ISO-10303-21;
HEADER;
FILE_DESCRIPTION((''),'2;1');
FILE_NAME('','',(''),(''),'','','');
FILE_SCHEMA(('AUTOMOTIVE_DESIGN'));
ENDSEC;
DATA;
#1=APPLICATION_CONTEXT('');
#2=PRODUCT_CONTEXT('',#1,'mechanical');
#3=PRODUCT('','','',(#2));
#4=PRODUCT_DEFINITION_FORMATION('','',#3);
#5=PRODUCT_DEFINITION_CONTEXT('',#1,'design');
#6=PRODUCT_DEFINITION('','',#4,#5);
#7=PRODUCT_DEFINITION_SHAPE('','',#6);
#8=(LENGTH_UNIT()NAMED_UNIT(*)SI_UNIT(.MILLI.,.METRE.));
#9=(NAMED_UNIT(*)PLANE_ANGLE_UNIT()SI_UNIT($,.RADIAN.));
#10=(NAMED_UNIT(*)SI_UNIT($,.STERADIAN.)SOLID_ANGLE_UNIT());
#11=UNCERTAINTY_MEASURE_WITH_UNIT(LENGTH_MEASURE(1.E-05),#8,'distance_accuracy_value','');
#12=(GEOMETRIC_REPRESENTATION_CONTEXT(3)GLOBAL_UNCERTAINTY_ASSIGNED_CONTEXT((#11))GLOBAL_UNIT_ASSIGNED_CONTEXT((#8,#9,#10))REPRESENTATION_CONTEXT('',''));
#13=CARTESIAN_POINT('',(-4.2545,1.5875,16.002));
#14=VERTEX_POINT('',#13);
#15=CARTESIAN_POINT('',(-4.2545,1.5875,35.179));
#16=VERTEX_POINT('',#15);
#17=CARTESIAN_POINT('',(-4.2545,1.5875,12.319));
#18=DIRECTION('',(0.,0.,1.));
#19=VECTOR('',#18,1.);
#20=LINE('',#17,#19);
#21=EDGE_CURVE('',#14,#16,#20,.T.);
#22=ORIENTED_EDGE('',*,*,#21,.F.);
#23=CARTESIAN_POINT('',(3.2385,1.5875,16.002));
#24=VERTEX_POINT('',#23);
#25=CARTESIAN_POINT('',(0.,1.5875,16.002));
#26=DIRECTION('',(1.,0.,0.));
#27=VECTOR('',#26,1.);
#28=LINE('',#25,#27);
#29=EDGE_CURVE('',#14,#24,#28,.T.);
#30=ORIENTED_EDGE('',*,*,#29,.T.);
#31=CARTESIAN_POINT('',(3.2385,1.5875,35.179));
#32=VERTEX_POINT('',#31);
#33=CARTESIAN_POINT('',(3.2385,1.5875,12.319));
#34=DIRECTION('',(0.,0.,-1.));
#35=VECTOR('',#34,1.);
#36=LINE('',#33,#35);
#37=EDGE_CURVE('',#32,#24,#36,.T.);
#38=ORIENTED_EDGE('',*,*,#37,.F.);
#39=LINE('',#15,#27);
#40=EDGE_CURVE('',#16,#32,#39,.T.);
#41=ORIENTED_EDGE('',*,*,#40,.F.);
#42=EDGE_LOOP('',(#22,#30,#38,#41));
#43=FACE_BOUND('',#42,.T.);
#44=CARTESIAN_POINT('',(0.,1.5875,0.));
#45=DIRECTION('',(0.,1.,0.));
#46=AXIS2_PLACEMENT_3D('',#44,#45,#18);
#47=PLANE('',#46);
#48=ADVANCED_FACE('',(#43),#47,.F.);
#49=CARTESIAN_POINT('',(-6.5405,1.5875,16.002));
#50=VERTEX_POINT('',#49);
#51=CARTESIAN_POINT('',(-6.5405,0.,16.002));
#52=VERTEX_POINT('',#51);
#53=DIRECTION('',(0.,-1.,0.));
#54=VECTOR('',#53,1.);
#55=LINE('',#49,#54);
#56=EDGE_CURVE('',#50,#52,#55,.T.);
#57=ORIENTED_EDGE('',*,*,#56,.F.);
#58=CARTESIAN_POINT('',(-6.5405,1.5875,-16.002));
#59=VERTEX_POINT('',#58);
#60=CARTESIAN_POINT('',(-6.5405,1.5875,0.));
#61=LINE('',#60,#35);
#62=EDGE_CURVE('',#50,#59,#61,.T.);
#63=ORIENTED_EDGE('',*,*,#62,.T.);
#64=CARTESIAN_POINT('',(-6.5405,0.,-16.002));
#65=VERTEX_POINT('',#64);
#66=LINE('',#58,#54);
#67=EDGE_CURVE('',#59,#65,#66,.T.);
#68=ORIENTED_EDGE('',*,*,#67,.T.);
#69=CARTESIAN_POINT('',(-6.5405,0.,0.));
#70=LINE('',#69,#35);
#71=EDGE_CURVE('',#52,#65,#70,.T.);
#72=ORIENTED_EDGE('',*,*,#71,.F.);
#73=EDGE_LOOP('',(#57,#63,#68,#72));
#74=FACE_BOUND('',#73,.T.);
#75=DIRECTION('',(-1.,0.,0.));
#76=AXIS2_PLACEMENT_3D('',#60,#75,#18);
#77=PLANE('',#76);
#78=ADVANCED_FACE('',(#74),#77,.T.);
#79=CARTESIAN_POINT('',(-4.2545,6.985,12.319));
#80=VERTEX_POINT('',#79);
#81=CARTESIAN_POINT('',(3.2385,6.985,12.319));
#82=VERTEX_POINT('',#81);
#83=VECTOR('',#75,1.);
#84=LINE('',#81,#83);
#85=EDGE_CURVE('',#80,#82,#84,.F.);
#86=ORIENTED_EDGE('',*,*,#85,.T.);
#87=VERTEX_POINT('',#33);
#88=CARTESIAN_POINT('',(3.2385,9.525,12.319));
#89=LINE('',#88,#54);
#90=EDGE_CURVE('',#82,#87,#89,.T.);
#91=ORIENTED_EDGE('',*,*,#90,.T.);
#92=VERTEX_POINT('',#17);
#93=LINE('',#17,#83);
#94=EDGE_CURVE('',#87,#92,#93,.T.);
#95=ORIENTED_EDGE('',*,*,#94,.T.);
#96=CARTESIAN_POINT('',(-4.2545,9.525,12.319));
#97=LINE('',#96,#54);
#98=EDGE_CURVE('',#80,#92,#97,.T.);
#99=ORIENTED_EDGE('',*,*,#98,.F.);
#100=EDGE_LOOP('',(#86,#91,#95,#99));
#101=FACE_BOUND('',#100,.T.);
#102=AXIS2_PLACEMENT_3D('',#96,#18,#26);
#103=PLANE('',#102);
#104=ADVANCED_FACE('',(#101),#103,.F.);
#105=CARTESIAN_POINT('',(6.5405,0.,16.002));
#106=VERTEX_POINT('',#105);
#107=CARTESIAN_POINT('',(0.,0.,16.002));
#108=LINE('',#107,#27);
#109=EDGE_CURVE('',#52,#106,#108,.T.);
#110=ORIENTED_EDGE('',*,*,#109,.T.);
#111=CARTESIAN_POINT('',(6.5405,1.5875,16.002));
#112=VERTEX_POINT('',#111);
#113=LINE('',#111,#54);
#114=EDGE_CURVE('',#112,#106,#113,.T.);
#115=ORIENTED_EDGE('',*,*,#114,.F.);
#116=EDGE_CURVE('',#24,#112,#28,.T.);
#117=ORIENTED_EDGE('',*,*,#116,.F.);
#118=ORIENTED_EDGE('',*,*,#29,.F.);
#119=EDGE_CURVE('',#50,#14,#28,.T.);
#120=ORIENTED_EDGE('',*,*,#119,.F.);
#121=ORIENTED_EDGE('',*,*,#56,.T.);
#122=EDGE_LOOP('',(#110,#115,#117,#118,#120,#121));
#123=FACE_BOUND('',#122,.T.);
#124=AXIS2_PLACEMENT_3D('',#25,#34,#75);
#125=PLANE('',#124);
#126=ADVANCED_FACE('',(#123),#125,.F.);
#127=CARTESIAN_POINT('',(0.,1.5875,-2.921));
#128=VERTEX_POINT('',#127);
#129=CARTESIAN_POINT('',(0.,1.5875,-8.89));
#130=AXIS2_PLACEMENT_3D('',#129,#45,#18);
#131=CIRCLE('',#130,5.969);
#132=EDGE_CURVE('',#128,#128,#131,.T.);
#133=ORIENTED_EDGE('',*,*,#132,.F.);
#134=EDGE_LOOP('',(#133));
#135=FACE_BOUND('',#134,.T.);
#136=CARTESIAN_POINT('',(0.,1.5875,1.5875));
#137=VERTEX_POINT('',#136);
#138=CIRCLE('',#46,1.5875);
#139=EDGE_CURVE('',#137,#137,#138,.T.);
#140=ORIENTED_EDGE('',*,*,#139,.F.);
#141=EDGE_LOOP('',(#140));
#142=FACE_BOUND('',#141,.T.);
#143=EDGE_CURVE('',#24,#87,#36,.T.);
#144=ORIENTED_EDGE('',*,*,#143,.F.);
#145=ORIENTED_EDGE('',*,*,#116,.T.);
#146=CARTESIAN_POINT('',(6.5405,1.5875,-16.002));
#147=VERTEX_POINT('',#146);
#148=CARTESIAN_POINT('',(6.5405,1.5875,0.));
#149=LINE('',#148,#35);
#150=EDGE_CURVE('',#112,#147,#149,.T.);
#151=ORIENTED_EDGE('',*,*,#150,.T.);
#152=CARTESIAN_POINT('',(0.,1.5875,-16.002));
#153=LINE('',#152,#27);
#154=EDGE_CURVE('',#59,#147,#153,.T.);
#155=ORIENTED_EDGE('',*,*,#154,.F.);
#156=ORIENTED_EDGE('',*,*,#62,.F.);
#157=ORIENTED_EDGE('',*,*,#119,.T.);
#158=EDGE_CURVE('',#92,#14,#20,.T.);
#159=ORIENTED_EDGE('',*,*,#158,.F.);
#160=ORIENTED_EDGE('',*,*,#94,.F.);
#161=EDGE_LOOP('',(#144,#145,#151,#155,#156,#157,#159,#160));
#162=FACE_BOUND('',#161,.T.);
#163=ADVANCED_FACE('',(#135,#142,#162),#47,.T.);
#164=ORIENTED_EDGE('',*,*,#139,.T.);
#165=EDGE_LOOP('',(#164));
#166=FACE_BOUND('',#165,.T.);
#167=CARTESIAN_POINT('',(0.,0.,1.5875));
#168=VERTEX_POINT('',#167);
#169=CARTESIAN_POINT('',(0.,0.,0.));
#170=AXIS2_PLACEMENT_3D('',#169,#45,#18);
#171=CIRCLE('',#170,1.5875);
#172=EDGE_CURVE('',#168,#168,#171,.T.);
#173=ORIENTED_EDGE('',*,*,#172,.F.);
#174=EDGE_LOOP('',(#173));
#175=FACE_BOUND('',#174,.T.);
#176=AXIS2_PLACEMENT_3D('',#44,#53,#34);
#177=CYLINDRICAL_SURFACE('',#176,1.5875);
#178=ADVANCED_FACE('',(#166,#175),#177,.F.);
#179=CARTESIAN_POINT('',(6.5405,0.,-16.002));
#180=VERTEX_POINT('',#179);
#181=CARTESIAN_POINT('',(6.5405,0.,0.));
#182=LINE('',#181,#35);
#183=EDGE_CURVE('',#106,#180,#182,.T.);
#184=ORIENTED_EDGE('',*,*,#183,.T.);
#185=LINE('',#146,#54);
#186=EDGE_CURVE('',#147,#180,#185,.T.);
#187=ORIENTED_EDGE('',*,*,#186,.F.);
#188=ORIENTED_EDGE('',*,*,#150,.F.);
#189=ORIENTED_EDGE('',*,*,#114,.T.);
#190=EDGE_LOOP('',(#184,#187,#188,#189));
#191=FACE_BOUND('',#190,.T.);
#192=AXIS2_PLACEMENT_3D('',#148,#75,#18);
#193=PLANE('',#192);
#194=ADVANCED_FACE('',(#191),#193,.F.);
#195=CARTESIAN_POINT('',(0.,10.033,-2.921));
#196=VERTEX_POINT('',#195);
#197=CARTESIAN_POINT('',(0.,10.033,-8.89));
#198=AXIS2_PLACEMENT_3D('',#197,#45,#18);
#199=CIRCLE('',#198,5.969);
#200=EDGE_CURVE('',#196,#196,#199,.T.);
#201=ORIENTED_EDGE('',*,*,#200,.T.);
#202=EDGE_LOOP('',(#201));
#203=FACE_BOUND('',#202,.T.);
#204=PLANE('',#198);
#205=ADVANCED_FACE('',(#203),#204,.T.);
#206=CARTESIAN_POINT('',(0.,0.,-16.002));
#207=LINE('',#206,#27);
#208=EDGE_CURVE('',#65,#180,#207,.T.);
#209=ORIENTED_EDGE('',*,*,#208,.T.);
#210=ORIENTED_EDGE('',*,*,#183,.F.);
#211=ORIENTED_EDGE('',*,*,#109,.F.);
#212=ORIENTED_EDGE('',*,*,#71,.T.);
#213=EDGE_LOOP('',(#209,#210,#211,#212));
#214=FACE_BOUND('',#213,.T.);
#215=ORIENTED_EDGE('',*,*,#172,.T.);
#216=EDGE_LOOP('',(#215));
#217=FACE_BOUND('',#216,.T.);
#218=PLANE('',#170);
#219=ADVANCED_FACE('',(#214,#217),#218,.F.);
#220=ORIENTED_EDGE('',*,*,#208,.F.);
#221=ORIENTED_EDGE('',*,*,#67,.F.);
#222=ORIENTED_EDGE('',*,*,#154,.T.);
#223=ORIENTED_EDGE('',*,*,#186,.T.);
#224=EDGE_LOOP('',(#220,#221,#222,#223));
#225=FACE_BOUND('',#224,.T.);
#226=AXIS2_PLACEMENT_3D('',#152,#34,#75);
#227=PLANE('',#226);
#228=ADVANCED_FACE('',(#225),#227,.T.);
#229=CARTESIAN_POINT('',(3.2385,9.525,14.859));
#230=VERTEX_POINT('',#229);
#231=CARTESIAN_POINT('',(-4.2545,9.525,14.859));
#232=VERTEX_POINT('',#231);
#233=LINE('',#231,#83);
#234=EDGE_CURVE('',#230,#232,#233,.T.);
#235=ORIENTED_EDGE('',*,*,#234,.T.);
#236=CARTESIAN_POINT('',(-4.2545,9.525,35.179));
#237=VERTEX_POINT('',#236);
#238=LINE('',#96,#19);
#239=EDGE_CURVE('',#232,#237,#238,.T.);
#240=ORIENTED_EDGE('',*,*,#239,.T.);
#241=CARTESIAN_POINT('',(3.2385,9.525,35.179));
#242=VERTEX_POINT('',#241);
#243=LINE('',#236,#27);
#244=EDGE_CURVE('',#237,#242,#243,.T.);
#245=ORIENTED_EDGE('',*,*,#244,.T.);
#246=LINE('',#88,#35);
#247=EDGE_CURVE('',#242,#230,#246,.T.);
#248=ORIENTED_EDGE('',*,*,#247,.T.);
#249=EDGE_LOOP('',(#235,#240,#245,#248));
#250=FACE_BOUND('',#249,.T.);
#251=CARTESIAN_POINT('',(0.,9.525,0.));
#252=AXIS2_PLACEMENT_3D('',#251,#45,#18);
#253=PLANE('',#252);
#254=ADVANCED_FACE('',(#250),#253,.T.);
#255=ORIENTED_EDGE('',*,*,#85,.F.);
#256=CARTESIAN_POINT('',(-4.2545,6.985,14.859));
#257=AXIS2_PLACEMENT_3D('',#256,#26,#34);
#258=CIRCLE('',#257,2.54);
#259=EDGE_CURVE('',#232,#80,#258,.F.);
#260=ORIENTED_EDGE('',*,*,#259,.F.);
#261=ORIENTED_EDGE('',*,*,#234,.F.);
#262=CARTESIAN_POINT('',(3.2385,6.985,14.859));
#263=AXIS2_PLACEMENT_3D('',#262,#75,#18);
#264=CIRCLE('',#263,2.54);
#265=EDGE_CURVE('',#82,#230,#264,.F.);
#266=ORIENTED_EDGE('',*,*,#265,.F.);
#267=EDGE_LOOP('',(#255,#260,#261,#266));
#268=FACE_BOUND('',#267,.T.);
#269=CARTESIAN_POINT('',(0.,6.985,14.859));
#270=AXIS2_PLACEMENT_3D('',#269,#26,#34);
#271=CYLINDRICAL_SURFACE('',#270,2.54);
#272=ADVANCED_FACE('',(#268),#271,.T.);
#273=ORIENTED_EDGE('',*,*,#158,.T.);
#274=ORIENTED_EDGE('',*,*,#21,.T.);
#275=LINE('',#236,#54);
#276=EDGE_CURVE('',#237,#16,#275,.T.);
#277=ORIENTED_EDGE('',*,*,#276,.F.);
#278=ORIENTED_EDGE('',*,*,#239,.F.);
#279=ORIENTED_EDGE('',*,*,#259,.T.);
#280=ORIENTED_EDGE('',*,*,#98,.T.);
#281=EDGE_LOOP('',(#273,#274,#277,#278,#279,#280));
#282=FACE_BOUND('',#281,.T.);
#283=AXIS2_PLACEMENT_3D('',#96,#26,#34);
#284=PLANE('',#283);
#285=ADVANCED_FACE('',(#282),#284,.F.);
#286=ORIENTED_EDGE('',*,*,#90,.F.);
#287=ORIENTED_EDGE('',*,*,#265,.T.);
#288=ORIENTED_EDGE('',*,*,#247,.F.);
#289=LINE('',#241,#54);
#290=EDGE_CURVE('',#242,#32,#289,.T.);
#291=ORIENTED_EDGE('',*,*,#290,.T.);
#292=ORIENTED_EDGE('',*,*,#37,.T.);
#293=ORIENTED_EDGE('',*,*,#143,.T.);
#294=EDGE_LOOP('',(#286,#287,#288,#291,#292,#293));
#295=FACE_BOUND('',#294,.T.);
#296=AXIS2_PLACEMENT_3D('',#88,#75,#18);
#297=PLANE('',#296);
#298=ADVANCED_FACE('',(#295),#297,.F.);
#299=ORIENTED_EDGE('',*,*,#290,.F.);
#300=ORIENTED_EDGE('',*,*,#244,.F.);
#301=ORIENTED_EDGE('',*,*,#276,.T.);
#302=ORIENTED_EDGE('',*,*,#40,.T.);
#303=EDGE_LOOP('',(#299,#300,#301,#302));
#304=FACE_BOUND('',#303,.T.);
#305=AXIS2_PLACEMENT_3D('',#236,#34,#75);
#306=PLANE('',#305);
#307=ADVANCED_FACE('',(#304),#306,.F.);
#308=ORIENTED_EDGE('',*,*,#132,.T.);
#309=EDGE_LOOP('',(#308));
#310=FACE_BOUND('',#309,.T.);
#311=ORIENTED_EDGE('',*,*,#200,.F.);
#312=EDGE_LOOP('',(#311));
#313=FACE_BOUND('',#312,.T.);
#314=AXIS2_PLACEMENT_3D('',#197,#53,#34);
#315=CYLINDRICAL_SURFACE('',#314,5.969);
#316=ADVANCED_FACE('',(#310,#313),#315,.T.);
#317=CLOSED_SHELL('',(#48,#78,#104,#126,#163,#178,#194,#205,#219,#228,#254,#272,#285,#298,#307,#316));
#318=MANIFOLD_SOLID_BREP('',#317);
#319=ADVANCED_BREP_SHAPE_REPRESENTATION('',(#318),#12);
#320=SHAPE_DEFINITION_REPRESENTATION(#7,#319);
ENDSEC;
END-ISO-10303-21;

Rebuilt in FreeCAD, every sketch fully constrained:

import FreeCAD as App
import Part
import Sketcher
from FreeCAD import Vector
Q = App.Units.Quantity


def edges_at(feature, points):
    """Names of the edges that pass closest to the given points."""
    edges = feature.Shape.Edges
    near = lambda p: min(range(len(edges)), key=lambda i: edges[i].distToShape(Part.Vertex(*p))[0])
    return sorted({f"Edge{near(p) + 1}" for p in points})

doc = App.newDocument("Part")
body = doc.addObject("PartDesign::Body", "Body")

sketch1 = body.newObject("Sketcher::SketchObject", "Sketch")
sketch1.AttachmentSupport = (doc.getObject("XZ_Plane"), [""])
sketch1.MapMode = "FlatFace"
sketch1.addGeometry([
    Part.LineSegment(Vector(-6.5405, -16.002, 0), Vector(-6.5405, 16.002, 0)),
    Part.LineSegment(Vector(-6.5405, 16.002, 0), Vector(6.5405, 16.002, 0)),
    Part.LineSegment(Vector(6.5405, 16.002, 0), Vector(6.5405, -16.002, 0)),
    Part.LineSegment(Vector(6.5405, -16.002, 0), Vector(-6.5405, -16.002, 0)),
    Part.Circle(Vector(0, 0, 0), Vector(0, 0, 1), 1.5875),
], False)
sketch1.addConstraint([
    Sketcher.Constraint("Coincident", 0, 2, 1, 1),
    Sketcher.Constraint("Coincident", 1, 2, 2, 1),
    Sketcher.Constraint("Coincident", 2, 2, 3, 1),
    Sketcher.Constraint("Coincident", 3, 2, 0, 1),
    Sketcher.Constraint("Vertical", 0),
    Sketcher.Constraint("Horizontal", 1),
    Sketcher.Constraint("Vertical", 2),
    Sketcher.Constraint("Horizontal", 3),
    Sketcher.Constraint("Coincident", 4, 3, -1, 1),
    Sketcher.Constraint("Symmetric", 0, 2, 2, 2, -1, 1),
    Sketcher.Constraint("Diameter", 4, Q("0.125 in")),
    Sketcher.Constraint("DistanceY", 0, 1, 0, 2, Q("1.26 in")),
    Sketcher.Constraint("DistanceX", 1, 1, 1, 2, Q("0.515 in")),
])
pad1 = body.newObject("PartDesign::Pad", "Pad")
pad1.Profile = sketch1
pad1.Length = Q("0.0625 in")
pad1.Reversed = True

sketch2 = body.newObject("Sketcher::SketchObject", "Sketch001")
sketch2.AttachmentSupport = (doc.getObject("XZ_Plane"), [""])
sketch2.MapMode = "FlatFace"
sketch2.AttachmentOffset = App.Placement(Vector(0, 0, -0.0625 * 25.4), App.Rotation())
sketch2.addGeometry(Part.Circle(Vector(0, -8.89, 0), Vector(0, 0, 1), 5.969), False)
sketch2.addConstraint([
    Sketcher.Constraint("PointOnObject", 0, 3, -2),
    Sketcher.Constraint("Diameter", 0, Q("0.47 in")),
    Sketcher.Constraint("DistanceY", 0, 3, -1, 1, Q("0.35 in")),
])
pad2 = body.newObject("PartDesign::Pad", "Pad001")
pad2.Profile = sketch2
pad2.Length = Q("0.3325 in")
pad2.Reversed = True

sketch3 = body.newObject("Sketcher::SketchObject", "Sketch002")
sketch3.AttachmentSupport = (doc.getObject("XZ_Plane"), [""])
sketch3.MapMode = "FlatFace"
sketch3.AttachmentOffset = App.Placement(Vector(0, 0, -0.0625 * 25.4), App.Rotation())
sketch3.addGeometry([
    Part.LineSegment(Vector(-4.2545, 12.319, 0), Vector(-4.2545, 35.179, 0)),
    Part.LineSegment(Vector(-4.2545, 35.179, 0), Vector(3.2385, 35.179, 0)),
    Part.LineSegment(Vector(3.2385, 35.179, 0), Vector(3.2385, 12.319, 0)),
    Part.LineSegment(Vector(3.2385, 12.319, 0), Vector(-4.2545, 12.319, 0)),
], False)
sketch3.addConstraint([
    Sketcher.Constraint("Coincident", 0, 2, 1, 1),
    Sketcher.Constraint("Coincident", 1, 2, 2, 1),
    Sketcher.Constraint("Coincident", 2, 2, 3, 1),
    Sketcher.Constraint("Coincident", 3, 2, 0, 1),
    Sketcher.Constraint("Vertical", 0),
    Sketcher.Constraint("Horizontal", 1),
    Sketcher.Constraint("Vertical", 2),
    Sketcher.Constraint("Horizontal", 3),
    Sketcher.Constraint("DistanceY", 0, 1, 0, 2, Q("0.9 in")),
    Sketcher.Constraint("DistanceX", 1, 1, 1, 2, Q("0.295 in")),
    Sketcher.Constraint("DistanceY", -1, 1, 0, 2, Q("1.385 in")),
    Sketcher.Constraint("DistanceX", 0, 2, -1, 1, Q("0.1675 in")),
])
pad3 = body.newObject("PartDesign::Pad", "Pad002")
pad3.Profile = sketch3
pad3.Length = Q("0.3125 in")
pad3.Reversed = True
doc.recompute()

fillet = body.newObject("PartDesign::Fillet", "Fillet")
fillet.Base = (pad3, edges_at(pad3, [(-0.508, 9.525, 12.319)]))
fillet.Radius = Q("0.1 in")

doc.recompute()
